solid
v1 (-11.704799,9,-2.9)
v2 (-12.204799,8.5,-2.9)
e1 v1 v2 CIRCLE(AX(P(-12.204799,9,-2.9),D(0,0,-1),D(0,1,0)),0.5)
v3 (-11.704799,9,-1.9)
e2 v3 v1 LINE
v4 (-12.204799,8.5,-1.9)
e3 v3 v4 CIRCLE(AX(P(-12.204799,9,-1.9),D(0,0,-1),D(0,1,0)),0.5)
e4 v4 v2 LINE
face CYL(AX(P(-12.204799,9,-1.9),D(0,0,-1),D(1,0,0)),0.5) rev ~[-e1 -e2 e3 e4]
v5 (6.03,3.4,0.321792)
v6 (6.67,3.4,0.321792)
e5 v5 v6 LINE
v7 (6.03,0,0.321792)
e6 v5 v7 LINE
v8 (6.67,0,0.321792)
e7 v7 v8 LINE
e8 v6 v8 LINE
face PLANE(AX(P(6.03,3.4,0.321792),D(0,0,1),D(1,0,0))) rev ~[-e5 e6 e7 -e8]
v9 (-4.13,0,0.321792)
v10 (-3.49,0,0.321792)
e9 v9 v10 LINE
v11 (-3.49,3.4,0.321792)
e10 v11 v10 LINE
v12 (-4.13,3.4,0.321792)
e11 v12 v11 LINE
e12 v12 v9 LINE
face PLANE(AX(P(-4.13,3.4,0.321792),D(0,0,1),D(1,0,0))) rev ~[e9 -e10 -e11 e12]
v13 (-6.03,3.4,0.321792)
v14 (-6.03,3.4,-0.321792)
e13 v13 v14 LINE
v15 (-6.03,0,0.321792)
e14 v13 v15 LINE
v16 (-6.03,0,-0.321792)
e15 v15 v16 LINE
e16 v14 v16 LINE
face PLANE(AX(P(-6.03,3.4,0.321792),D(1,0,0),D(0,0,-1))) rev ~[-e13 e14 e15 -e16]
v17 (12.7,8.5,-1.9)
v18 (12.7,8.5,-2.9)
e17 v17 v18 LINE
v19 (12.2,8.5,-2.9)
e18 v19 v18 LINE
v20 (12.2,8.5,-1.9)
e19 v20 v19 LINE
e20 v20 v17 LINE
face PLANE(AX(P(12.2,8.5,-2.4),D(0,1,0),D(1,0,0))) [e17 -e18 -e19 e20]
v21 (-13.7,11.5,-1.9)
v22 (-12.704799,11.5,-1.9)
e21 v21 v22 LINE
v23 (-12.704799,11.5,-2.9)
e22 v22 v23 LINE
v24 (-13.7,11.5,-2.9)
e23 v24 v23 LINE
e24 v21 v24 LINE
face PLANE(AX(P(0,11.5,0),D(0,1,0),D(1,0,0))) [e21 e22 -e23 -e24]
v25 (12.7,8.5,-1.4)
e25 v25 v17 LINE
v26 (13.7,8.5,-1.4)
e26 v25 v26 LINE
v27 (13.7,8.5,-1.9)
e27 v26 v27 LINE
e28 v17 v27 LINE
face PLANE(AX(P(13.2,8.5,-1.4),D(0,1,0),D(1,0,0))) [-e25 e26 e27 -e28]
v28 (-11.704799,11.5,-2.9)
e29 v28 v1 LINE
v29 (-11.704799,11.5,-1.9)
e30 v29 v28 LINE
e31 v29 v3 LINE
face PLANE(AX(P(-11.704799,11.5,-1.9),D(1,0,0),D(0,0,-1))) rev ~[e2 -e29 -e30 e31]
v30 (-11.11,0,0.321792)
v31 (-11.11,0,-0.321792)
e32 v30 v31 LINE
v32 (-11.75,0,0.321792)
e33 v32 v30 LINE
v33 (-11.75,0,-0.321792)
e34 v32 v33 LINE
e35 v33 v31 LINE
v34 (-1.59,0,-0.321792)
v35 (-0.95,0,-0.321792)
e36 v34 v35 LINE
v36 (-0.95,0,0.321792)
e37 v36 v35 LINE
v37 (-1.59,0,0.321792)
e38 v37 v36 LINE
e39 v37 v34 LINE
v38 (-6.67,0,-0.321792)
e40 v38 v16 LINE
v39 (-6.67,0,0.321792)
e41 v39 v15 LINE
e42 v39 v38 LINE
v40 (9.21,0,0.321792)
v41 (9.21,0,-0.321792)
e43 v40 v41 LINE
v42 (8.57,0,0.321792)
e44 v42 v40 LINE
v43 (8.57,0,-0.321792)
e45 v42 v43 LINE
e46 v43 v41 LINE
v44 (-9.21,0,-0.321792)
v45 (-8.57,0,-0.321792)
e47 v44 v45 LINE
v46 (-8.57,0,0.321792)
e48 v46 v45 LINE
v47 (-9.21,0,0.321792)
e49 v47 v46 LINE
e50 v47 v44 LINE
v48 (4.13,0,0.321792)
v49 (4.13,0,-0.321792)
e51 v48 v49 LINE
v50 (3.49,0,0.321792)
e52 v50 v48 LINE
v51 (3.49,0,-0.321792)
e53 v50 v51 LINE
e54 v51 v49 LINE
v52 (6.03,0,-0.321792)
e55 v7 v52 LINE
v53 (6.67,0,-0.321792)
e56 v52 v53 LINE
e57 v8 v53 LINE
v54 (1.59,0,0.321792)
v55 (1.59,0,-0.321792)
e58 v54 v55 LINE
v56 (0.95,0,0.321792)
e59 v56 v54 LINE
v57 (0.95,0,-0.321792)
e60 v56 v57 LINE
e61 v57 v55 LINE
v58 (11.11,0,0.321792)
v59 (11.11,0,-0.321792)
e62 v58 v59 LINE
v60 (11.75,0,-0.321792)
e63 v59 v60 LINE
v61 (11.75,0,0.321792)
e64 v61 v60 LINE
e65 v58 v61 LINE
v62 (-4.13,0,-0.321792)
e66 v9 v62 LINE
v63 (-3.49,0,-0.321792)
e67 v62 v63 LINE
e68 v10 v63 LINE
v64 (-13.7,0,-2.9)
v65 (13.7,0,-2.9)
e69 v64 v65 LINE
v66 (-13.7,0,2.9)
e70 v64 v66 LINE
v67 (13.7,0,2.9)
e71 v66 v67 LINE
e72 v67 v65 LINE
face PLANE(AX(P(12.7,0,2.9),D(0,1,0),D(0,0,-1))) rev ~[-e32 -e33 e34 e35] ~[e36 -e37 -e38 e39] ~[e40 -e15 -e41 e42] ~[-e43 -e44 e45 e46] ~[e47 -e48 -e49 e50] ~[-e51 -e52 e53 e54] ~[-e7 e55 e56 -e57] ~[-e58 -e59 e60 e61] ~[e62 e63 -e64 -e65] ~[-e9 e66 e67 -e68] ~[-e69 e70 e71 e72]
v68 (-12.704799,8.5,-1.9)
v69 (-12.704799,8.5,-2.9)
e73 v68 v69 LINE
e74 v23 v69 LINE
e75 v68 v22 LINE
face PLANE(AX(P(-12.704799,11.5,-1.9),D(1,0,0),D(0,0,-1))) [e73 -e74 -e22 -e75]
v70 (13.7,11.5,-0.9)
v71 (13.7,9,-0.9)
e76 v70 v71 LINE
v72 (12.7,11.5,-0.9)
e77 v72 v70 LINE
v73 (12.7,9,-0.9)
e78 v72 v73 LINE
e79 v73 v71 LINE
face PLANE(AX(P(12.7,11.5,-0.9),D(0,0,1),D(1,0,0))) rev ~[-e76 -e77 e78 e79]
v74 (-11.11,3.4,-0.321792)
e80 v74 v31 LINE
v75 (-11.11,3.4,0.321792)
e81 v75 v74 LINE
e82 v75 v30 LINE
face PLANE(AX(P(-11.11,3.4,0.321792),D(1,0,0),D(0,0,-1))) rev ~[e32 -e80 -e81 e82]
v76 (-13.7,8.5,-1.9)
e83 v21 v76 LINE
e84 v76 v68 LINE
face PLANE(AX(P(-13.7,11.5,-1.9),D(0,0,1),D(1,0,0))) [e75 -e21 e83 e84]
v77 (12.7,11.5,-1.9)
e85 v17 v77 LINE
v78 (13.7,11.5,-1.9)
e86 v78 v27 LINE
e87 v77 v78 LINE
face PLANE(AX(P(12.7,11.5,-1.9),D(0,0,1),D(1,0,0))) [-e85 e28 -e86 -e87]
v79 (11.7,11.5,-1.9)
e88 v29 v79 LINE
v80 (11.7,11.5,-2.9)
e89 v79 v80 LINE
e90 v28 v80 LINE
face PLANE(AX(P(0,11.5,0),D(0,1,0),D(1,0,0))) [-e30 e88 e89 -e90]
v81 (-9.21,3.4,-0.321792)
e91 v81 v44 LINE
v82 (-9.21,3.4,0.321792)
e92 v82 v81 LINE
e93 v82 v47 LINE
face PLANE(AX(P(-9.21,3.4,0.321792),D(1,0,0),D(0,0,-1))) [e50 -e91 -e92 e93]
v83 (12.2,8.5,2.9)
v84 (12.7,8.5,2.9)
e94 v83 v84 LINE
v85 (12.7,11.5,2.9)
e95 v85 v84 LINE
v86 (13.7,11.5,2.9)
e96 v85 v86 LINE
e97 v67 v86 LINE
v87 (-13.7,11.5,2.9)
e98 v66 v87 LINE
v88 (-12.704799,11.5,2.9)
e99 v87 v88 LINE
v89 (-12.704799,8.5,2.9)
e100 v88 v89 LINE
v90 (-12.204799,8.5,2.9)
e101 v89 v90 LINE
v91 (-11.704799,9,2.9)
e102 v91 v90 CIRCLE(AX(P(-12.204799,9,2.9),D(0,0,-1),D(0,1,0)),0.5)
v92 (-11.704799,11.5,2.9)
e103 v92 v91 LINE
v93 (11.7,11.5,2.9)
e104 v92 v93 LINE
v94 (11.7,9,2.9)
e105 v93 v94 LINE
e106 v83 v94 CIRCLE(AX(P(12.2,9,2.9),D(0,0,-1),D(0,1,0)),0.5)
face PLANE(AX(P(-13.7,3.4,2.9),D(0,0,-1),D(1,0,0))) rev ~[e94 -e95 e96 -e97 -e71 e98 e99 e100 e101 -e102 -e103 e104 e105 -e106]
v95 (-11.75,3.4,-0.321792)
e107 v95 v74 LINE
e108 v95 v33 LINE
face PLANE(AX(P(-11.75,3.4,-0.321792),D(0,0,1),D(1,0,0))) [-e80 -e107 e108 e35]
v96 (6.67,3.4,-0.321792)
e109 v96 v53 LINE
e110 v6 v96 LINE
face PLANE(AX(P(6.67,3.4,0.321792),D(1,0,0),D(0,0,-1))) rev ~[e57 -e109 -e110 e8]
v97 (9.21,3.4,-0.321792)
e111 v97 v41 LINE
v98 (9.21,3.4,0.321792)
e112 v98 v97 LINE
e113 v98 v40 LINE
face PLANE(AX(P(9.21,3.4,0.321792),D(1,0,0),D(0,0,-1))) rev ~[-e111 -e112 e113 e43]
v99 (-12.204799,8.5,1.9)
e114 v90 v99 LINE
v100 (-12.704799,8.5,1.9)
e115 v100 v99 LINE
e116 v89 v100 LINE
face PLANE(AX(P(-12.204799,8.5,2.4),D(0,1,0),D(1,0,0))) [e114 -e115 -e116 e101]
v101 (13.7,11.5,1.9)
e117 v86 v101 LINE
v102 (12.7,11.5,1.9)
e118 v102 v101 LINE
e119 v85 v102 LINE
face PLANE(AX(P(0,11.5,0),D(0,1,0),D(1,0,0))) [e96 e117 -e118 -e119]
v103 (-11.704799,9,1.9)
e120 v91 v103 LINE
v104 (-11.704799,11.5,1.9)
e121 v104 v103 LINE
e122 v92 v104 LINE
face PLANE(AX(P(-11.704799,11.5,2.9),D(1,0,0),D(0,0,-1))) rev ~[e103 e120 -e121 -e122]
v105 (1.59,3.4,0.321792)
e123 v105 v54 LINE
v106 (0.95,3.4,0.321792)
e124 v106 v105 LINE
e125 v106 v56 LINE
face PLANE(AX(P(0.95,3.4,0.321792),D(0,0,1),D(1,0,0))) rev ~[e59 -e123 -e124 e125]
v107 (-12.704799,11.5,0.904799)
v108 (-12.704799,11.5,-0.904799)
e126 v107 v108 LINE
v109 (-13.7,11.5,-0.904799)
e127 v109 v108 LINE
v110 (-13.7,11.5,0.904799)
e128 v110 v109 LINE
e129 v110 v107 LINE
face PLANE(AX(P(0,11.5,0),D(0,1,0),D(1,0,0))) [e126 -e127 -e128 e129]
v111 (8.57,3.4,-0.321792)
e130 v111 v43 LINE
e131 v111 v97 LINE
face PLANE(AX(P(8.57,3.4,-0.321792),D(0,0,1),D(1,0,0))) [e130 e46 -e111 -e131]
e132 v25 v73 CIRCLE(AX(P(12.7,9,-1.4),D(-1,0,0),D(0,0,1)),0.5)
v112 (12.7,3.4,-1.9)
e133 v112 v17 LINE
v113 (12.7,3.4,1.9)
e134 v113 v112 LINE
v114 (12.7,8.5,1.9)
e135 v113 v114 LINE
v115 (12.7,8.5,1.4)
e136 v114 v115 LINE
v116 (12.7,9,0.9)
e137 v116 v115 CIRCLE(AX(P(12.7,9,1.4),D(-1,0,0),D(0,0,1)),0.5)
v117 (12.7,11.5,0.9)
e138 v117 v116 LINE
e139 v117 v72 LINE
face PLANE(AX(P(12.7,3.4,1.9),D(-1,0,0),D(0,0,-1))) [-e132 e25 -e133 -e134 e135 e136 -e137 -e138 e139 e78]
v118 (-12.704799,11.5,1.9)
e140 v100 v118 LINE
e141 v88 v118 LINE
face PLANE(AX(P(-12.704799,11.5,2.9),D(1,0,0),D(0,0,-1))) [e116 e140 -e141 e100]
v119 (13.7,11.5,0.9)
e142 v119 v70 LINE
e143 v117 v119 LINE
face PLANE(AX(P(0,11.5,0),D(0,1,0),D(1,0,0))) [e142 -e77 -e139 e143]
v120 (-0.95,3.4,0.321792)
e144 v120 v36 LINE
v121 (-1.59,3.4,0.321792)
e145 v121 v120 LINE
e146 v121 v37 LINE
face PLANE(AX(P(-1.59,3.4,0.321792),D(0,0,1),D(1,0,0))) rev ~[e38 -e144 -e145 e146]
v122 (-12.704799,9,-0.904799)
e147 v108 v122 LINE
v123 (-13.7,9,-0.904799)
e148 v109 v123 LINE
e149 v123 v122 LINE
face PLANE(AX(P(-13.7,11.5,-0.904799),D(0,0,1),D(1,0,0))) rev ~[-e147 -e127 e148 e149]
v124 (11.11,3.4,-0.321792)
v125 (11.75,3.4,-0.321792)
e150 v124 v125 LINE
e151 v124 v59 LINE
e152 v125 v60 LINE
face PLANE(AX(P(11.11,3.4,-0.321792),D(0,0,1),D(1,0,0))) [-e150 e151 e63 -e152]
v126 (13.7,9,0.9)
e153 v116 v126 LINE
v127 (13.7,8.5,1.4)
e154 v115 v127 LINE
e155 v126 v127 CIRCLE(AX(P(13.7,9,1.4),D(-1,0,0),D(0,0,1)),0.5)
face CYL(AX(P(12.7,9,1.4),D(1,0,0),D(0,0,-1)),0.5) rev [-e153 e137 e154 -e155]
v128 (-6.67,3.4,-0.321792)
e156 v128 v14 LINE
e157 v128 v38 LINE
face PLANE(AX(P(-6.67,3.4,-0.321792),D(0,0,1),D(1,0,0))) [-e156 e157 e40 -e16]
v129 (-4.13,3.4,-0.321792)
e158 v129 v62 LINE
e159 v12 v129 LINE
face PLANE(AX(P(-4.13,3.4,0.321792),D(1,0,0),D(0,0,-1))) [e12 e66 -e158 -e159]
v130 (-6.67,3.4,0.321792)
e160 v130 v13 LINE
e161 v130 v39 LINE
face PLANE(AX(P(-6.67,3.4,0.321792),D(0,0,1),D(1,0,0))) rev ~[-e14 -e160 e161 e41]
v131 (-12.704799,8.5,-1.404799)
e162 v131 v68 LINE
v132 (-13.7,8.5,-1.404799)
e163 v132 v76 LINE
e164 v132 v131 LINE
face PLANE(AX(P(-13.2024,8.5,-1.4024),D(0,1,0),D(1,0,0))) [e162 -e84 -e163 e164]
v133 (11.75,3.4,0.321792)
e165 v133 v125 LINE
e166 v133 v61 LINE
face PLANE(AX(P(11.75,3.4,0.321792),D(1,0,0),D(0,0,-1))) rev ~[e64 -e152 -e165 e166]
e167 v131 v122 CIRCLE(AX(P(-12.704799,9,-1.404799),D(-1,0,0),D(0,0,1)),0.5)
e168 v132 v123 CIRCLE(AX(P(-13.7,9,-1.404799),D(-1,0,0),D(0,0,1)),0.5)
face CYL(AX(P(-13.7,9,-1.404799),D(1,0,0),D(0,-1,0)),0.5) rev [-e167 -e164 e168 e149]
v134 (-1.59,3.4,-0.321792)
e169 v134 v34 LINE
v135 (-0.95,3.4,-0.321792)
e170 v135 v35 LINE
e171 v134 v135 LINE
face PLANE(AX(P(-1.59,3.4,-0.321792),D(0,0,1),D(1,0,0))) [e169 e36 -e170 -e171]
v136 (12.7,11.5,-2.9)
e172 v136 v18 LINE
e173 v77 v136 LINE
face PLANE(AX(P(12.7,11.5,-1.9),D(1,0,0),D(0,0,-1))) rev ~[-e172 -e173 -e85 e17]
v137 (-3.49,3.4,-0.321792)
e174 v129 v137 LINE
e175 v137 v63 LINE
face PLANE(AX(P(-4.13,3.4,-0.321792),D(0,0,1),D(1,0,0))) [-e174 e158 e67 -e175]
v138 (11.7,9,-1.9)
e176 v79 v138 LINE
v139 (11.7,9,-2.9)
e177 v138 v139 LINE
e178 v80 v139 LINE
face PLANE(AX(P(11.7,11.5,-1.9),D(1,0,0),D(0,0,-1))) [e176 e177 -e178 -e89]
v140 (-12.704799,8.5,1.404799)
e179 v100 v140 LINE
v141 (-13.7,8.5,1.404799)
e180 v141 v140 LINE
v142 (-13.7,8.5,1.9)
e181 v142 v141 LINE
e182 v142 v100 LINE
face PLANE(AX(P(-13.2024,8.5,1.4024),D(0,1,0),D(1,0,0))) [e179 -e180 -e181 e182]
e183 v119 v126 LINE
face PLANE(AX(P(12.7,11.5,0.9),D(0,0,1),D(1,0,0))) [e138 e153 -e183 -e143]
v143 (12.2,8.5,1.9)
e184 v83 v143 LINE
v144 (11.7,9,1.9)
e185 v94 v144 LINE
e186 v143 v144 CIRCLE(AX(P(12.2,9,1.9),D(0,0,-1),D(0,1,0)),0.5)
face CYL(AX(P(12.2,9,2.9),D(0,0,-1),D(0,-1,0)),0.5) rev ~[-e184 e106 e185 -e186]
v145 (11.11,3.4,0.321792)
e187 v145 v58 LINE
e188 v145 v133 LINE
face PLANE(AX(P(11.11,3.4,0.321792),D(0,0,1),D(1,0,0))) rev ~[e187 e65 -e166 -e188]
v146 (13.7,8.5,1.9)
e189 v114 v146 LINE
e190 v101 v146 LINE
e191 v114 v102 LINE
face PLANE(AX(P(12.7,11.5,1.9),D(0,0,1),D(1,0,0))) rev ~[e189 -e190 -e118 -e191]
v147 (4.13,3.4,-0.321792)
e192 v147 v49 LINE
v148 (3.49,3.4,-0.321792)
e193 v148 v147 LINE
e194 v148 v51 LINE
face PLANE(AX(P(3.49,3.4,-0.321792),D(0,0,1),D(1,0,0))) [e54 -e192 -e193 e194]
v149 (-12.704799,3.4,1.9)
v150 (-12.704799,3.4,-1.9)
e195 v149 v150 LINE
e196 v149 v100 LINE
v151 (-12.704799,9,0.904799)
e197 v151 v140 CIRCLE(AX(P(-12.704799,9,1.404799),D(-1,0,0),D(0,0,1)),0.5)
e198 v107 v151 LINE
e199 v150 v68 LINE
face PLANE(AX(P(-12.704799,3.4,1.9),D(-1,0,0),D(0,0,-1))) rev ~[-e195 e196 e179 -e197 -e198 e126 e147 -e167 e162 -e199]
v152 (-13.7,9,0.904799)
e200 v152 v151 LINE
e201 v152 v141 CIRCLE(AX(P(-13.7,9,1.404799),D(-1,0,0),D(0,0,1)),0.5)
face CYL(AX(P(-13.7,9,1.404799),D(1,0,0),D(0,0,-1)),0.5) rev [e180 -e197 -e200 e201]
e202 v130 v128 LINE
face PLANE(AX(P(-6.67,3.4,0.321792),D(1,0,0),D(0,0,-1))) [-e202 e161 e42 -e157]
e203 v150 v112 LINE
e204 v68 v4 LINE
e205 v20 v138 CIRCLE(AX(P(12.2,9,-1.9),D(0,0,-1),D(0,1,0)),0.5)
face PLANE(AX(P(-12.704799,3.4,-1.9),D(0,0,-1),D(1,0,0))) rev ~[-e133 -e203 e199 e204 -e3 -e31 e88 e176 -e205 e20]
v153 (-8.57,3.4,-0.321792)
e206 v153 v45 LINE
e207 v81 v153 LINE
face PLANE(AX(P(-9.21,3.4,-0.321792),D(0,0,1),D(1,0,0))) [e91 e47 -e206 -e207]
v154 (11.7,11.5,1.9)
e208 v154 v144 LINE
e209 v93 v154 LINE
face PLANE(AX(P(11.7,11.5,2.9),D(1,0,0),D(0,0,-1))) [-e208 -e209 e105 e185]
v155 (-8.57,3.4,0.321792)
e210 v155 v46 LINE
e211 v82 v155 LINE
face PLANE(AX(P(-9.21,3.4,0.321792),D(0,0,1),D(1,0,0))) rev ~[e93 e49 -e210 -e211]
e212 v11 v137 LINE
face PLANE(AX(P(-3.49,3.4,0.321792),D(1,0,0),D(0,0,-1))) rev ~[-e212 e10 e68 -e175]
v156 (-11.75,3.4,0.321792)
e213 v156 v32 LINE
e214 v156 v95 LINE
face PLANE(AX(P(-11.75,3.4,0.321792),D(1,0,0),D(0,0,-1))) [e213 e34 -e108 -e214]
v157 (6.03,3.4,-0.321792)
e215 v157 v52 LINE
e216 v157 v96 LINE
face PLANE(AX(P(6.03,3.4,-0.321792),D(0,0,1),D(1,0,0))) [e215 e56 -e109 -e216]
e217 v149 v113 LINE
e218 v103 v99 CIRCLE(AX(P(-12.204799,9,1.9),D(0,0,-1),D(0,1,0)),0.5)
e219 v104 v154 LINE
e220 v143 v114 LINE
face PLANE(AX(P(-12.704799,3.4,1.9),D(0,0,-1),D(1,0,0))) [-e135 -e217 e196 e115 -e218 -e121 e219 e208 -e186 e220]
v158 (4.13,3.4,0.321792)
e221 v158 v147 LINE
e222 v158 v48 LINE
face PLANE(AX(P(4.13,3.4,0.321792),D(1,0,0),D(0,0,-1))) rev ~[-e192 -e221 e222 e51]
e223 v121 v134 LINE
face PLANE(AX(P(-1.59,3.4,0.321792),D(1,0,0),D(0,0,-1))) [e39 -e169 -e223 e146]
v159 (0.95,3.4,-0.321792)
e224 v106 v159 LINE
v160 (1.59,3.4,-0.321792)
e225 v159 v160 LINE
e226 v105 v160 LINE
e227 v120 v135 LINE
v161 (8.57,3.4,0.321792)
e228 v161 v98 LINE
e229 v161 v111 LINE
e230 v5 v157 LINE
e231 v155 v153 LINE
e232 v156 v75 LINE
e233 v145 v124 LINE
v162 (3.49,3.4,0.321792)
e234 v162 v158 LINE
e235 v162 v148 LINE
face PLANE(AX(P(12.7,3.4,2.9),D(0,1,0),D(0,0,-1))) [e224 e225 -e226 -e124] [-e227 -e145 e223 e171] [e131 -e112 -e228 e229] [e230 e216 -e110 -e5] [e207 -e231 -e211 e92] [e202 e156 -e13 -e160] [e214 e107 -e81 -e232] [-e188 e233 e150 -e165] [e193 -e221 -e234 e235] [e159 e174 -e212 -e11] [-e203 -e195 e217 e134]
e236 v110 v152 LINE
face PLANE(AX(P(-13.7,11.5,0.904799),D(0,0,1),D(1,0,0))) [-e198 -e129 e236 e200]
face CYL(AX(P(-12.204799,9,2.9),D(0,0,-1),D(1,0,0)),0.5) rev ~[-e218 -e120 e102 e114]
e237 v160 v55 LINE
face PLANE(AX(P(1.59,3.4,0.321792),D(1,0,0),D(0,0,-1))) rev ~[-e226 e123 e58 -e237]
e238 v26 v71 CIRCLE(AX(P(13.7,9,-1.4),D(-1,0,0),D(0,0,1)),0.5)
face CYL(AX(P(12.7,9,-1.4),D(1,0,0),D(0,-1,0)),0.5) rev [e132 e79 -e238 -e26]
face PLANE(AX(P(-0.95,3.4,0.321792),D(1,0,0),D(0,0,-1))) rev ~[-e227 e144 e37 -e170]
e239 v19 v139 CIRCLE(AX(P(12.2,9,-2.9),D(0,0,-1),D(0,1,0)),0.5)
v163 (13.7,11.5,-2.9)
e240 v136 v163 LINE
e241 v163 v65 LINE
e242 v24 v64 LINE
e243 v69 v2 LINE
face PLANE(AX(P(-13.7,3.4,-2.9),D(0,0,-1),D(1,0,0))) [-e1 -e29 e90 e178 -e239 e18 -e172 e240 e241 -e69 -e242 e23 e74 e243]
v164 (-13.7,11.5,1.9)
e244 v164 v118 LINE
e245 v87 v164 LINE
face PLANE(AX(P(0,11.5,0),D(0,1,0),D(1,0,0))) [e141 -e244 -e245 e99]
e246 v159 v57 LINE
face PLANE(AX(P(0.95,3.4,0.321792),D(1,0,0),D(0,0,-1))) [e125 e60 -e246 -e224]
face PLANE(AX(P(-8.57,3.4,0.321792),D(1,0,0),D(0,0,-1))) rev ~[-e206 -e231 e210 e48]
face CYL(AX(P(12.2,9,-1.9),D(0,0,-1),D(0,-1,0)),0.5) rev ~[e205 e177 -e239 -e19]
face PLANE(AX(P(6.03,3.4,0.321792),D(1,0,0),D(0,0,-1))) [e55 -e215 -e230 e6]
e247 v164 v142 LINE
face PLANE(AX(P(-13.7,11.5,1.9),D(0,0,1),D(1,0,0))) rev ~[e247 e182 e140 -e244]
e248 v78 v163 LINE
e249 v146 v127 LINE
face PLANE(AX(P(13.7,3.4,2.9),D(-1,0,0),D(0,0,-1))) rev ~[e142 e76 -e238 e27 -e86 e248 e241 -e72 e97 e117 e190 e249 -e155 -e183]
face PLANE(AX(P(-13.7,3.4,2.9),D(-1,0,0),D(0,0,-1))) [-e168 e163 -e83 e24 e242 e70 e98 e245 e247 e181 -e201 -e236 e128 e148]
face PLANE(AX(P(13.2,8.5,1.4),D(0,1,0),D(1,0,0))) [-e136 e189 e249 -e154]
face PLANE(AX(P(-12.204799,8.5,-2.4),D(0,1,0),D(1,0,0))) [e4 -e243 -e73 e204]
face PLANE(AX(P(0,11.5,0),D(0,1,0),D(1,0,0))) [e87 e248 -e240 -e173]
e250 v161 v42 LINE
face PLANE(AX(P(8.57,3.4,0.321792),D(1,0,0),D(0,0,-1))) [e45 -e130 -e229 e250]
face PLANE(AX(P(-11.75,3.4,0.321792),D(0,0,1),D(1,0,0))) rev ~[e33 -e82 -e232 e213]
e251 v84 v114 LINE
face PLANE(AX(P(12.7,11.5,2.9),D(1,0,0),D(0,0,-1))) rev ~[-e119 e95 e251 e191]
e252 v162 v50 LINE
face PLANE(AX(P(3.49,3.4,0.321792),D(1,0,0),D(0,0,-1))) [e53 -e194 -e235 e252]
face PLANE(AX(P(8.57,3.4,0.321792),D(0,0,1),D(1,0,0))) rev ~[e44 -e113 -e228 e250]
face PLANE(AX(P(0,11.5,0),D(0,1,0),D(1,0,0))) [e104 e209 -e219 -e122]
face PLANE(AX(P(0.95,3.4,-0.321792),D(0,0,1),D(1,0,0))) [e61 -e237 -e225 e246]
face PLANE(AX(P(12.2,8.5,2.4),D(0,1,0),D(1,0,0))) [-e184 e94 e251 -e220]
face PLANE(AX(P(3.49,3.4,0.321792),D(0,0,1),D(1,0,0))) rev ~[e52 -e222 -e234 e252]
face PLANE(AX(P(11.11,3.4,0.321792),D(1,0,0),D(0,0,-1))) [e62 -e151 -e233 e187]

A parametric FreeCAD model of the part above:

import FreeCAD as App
import Part
import Sketcher
from FreeCAD import Vector
Q = App.Units.Quantity


def edges_at(feature, points):
    """Names of the edges that pass closest to the given points."""
    edges = feature.Shape.Edges
    near = lambda p: min(range(len(edges)), key=lambda i: edges[i].distToShape(Part.Vertex(*p))[0])
    return sorted({f"Edge{near(p) + 1}" for p in points})

doc = App.newDocument("Part")
params = doc.addObject("Spreadsheet::Sheet", "Params")
for row, (alias, value) in enumerate([
    ("sketch1_width", "25.4 mm"),
    ("sketch1_height", "5.8 mm"),
    ("pad1_length", "3.4 mm"),
    ("sketch2_width", "0.64 mm"),
    ("pocket1_length", "3.4 mm"),
    ("sketch3_width", "3.4 mm"),
    ("sketch3_height", "5.8 mm"),
    ("pad2_length", "1 mm"),
    ("sketch4_width", "3.4 mm"),
    ("sketch4_height", "5.8 mm"),
    ("pad3_length", "1 mm"),
    ("sketch5_width", "27.4 mm"),
    ("sketch5_height", "5.8 mm"),
    ("sketch5_height2", "3.8 mm"),
    ("pad4_length", "8.1 mm"),
    ("sketch6_width", "1 mm"),
    ("pocket2_length", "3 mm"),
    ("fillet_radius", "0.5 mm"),
], start=1):
    params.set(f"A{row}", alias)
    params.set(f"B{row}", "=" + value)
    params.setAlias(f"B{row}", alias)

body = doc.addObject("PartDesign::Body", "Body")

# Sketch on XZ plane
sketch1 = body.newObject("Sketcher::SketchObject", "Sketch")
sketch1.AttachmentSupport = (doc.getObject("XZ_Plane"), [""])
sketch1.MapMode = "FlatFace"
sketch1.addGeometry([
    Part.LineSegment(Vector(-13, -3, 0), Vector(-13, 3, 0)),
    Part.LineSegment(Vector(-13, 3, 0), Vector(13, 3, 0)),
    Part.LineSegment(Vector(13, 3, 0), Vector(13, -3, 0)),
    Part.LineSegment(Vector(13, -3, 0), Vector(-13, -3, 0)),
], False)
sketch1.addConstraint([
    Sketcher.Constraint("Coincident", 0, 2, 1, 1),
    Sketcher.Constraint("Coincident", 1, 2, 2, 1),
    Sketcher.Constraint("Coincident", 2, 2, 3, 1),
    Sketcher.Constraint("Coincident", 3, 2, 0, 1),
    Sketcher.Constraint("Vertical", 0),
    Sketcher.Constraint("Horizontal", 1),
    Sketcher.Constraint("Vertical", 2),
    Sketcher.Constraint("Horizontal", 3),
    Sketcher.Constraint("Symmetric", 0, 2, 2, 2, -1, 1),
    Sketcher.Constraint("DistanceX", 1, 1, 1, 2, Q("25.4 mm")),
    Sketcher.Constraint("DistanceY", 0, 1, 0, 2, Q("5.8 mm")),
])
sketch1.setExpression("Constraints[9]", "Params.sketch1_width")
sketch1.setExpression("Constraints[10]", "Params.sketch1_height")
pad1 = body.newObject("PartDesign::Pad", "Pad")
pad1.Profile = sketch1
pad1.setExpression("Length", "Params.pad1_length")
pad1.Reversed = True

# Sketch on XZ plane
sketch2 = body.newObject("Sketcher::SketchObject", "Sketch001")
sketch2.AttachmentSupport = (doc.getObject("XZ_Plane"), [""])
sketch2.MapMode = "FlatFace"
sketch2.AttachmentOffset = App.Placement(Vector(0, 0, -3.4), App.Rotation())
sketch2.addGeometry([
    Part.LineSegment(Vector(-11.8, -0.3, 0), Vector(-11.8, 0.3, 0)),  # 0
    Part.LineSegment(Vector(-11.8, 0.3, 0), Vector(-11.1, 0.3, 0)),  # 1
    Part.LineSegment(Vector(-11.1, 0.3, 0), Vector(-11.1, -0.3, 0)),  # 2
    Part.LineSegment(Vector(-11.1, -0.3, 0), Vector(-11.8, -0.3, 0)),  # 3
    Part.LineSegment(Vector(-9.2, -0.3, 0), Vector(-9.2, 0.3, 0)),  # 4
    Part.LineSegment(Vector(-9.2, 0.3, 0), Vector(-8.6, 0.3, 0)),  # 5
    Part.LineSegment(Vector(-8.6, 0.3, 0), Vector(-8.6, -0.3, 0)),  # 6
    Part.LineSegment(Vector(-8.6, -0.3, 0), Vector(-9.2, -0.3, 0)),  # 7
    Part.LineSegment(Vector(-6.7, -0.3, 0), Vector(-6.7, 0.3, 0)),  # 8
    Part.LineSegment(Vector(-6.7, 0.3, 0), Vector(-6, 0.3, 0)),  # 9
    Part.LineSegment(Vector(-6, 0.3, 0), Vector(-6, -0.3, 0)),  # 10
    Part.LineSegment(Vector(-6, -0.3, 0), Vector(-6.7, -0.3, 0)),  # 11
    Part.LineSegment(Vector(-4.1, -0.3, 0), Vector(-4.1, 0.3, 0)),  # 12
    Part.LineSegment(Vector(-4.1, 0.3, 0), Vector(-3.5, 0.3, 0)),  # 13
    Part.LineSegment(Vector(-3.5, 0.3, 0), Vector(-3.5, -0.3, 0)),  # 14
    Part.LineSegment(Vector(-3.5, -0.3, 0), Vector(-4.1, -0.3, 0)),  # 15
    Part.LineSegment(Vector(-1.6, -0.3, 0), Vector(-1.6, 0.3, 0)),  # 16
    Part.LineSegment(Vector(-1.6, 0.3, 0), Vector(-0.9, 0.3, 0)),  # 17
    Part.LineSegment(Vector(-0.9, 0.3, 0), Vector(-0.9, -0.3, 0)),  # 18
    Part.LineSegment(Vector(-0.9, -0.3, 0), Vector(-1.6, -0.3, 0)),  # 19
    Part.LineSegment(Vector(0.9, -0.3, 0), Vector(0.9, 0.3, 0)),  # 20
    Part.LineSegment(Vector(0.9, 0.3, 0), Vector(1.6, 0.3, 0)),  # 21
    Part.LineSegment(Vector(1.6, 0.3, 0), Vector(1.6, -0.3, 0)),  # 22
    Part.LineSegment(Vector(1.6, -0.3, 0), Vector(0.9, -0.3, 0)),  # 23
    Part.LineSegment(Vector(3.5, -0.3, 0), Vector(3.5, 0.3, 0)),  # 24
    Part.LineSegment(Vector(3.5, 0.3, 0), Vector(4.1, 0.3, 0)),  # 25
    Part.LineSegment(Vector(4.1, 0.3, 0), Vector(4.1, -0.3, 0)),  # 26
    Part.LineSegment(Vector(4.1, -0.3, 0), Vector(3.5, -0.3, 0)),  # 27
    Part.LineSegment(Vector(6, -0.3, 0), Vector(6, 0.3, 0)),  # 28
    Part.LineSegment(Vector(6, 0.3, 0), Vector(6.7, 0.3, 0)),  # 29
    Part.LineSegment(Vector(6.7, 0.3, 0), Vector(6.7, -0.3, 0)),  # 30
    Part.LineSegment(Vector(6.7, -0.3, 0), Vector(6, -0.3, 0)),  # 31
    Part.LineSegment(Vector(8.6, -0.3, 0), Vector(8.6, 0.3, 0)),  # 32
    Part.LineSegment(Vector(8.6, 0.3, 0), Vector(9.2, 0.3, 0)),  # 33
    Part.LineSegment(Vector(9.2, 0.3, 0), Vector(9.2, -0.3, 0)),  # 34
    Part.LineSegment(Vector(9.2, -0.3, 0), Vector(8.6, -0.3, 0)),  # 35
    Part.LineSegment(Vector(11.1, -0.3, 0), Vector(11.1, 0.3, 0)),  # 36
    Part.LineSegment(Vector(11.1, 0.3, 0), Vector(11.8, 0.3, 0)),  # 37
    Part.LineSegment(Vector(11.8, 0.3, 0), Vector(11.8, -0.3, 0)),  # 38
    Part.LineSegment(Vector(11.8, -0.3, 0), Vector(11.1, -0.3, 0)),  # 39
], False)
sketch2.addConstraint([
    Sketcher.Constraint("Coincident", 0, 2, 1, 1),
    Sketcher.Constraint("Coincident", 1, 2, 2, 1),
    Sketcher.Constraint("Coincident", 2, 2, 3, 1),
    Sketcher.Constraint("Coincident", 3, 2, 0, 1),
    Sketcher.Constraint("Coincident", 4, 2, 5, 1),
    Sketcher.Constraint("Coincident", 5, 2, 6, 1),
    Sketcher.Constraint("Coincident", 6, 2, 7, 1),
    Sketcher.Constraint("Coincident", 7, 2, 4, 1),
    Sketcher.Constraint("Coincident", 8, 2, 9, 1),
    Sketcher.Constraint("Coincident", 9, 2, 10, 1),
    Sketcher.Constraint("Coincident", 10, 2, 11, 1),
    Sketcher.Constraint("Coincident", 11, 2, 8, 1),
    Sketcher.Constraint("Coincident", 12, 2, 13, 1),
    Sketcher.Constraint("Coincident", 13, 2, 14, 1),
    Sketcher.Constraint("Coincident", 14, 2, 15, 1),
    Sketcher.Constraint("Coincident", 15, 2, 12, 1),
    Sketcher.Constraint("Coincident", 16, 2, 17, 1),
    Sketcher.Constraint("Coincident", 17, 2, 18, 1),
    Sketcher.Constraint("Coincident", 18, 2, 19, 1),
    Sketcher.Constraint("Coincident", 19, 2, 16, 1),
    Sketcher.Constraint("Coincident", 20, 2, 21, 1),
    Sketcher.Constraint("Coincident", 21, 2, 22, 1),
    Sketcher.Constraint("Coincident", 22, 2, 23, 1),
    Sketcher.Constraint("Coincident", 23, 2, 20, 1),
    Sketcher.Constraint("Coincident", 24, 2, 25, 1),
    Sketcher.Constraint("Coincident", 25, 2, 26, 1),
    Sketcher.Constraint("Coincident", 26, 2, 27, 1),
    Sketcher.Constraint("Coincident", 27, 2, 24, 1),
    Sketcher.Constraint("Coincident", 28, 2, 29, 1),
    Sketcher.Constraint("Coincident", 29, 2, 30, 1),
    Sketcher.Constraint("Coincident", 30, 2, 31, 1),
    Sketcher.Constraint("Coincident", 31, 2, 28, 1),
    Sketcher.Constraint("Coincident", 32, 2, 33, 1),
    Sketcher.Constraint("Coincident", 33, 2, 34, 1),
    Sketcher.Constraint("Coincident", 34, 2, 35, 1),
    Sketcher.Constraint("Coincident", 35, 2, 32, 1),
    Sketcher.Constraint("Coincident", 36, 2, 37, 1),
    Sketcher.Constraint("Coincident", 37, 2, 38, 1),
    Sketcher.Constraint("Coincident", 38, 2, 39, 1),
    Sketcher.Constraint("Coincident", 39, 2, 36, 1),
    Sketcher.Constraint("Vertical", 0),
    Sketcher.Constraint("Horizontal", 1),
    Sketcher.Constraint("Vertical", 2),
    Sketcher.Constraint("Horizontal", 3),
    Sketcher.Constraint("Vertical", 4),
    Sketcher.Constraint("Horizontal", 5),
    Sketcher.Constraint("Vertical", 6),
    Sketcher.Constraint("Horizontal", 7),
    Sketcher.Constraint("Vertical", 8),
    Sketcher.Constraint("Horizontal", 9),
    Sketcher.Constraint("Vertical", 10),
    Sketcher.Constraint("Horizontal", 11),
    Sketcher.Constraint("Vertical", 12),
    Sketcher.Constraint("Horizontal", 13),
    Sketcher.Constraint("Vertical", 14),
    Sketcher.Constraint("Horizontal", 15),
    Sketcher.Constraint("Vertical", 16),
    Sketcher.Constraint("Horizontal", 17),
    Sketcher.Constraint("Vertical", 18),
    Sketcher.Constraint("Horizontal", 19),
    Sketcher.Constraint("Vertical", 20),
    Sketcher.Constraint("Horizontal", 21),
    Sketcher.Constraint("Vertical", 22),
    Sketcher.Constraint("Horizontal", 23),
    Sketcher.Constraint("Vertical", 24),
    Sketcher.Constraint("Horizontal", 25),
    Sketcher.Constraint("Vertical", 26),
    Sketcher.Constraint("Horizontal", 27),
    Sketcher.Constraint("Vertical", 28),
    Sketcher.Constraint("Horizontal", 29),
    Sketcher.Constraint("Vertical", 30),
    Sketcher.Constraint("Horizontal", 31),
    Sketcher.Constraint("Vertical", 32),
    Sketcher.Constraint("Horizontal", 33),
    Sketcher.Constraint("Vertical", 34),
    Sketcher.Constraint("Horizontal", 35),
    Sketcher.Constraint("Vertical", 36),
    Sketcher.Constraint("Horizontal", 37),
    Sketcher.Constraint("Vertical", 38),
    Sketcher.Constraint("Horizontal", 39),
    Sketcher.Constraint("Symmetric", 18, 2, 20, 2, -1, 1),
    Sketcher.Constraint("Symmetric", 16, 2, 22, 2, -1, 1),
    Sketcher.Constraint("Symmetric", 14, 2, 24, 2, -1, 1),
    Sketcher.Constraint("Symmetric", 12, 2, 26, 2, -1, 1),
    Sketcher.Constraint("Symmetric", 10, 2, 28, 2, -1, 1),
    Sketcher.Constraint("Symmetric", 8, 2, 30, 2, -1, 1),
    Sketcher.Constraint("Symmetric", 6, 2, 32, 2, -1, 1),
    Sketcher.Constraint("Symmetric", 4, 2, 34, 2, -1, 1),
    Sketcher.Constraint("Symmetric", 2, 2, 36, 2, -1, 1),
    Sketcher.Constraint("Symmetric", 0, 2, 38, 2, -1, 1),
    Sketcher.Constraint("Horizontal", 1, 2, 4, 2),
    Sketcher.Constraint("Horizontal", 3, 2, 6, 2),
    Sketcher.Constraint("Horizontal", 5, 2, 8, 2),
    Sketcher.Constraint("Horizontal", 7, 2, 10, 2),
    Sketcher.Constraint("Horizontal", 9, 2, 12, 2),
    Sketcher.Constraint("Horizontal", 11, 2, 14, 2),
    Sketcher.Constraint("Horizontal", 13, 2, 16, 2),
    Sketcher.Constraint("Horizontal", 15, 2, 18, 2),
    Sketcher.Constraint("Horizontal", 17, 2, 20, 2),
    Sketcher.Constraint("Equal", 3, 5),
    Sketcher.Constraint("Equal", 7, 9),
    Sketcher.Constraint("Equal", 11, 13),
    Sketcher.Constraint("Equal", 15, 17),
    Sketcher.Constraint("DistanceX", 1, 1, 1, 2, Q("0.64 mm")),
    Sketcher.Constraint("DistanceX", 1, 2, 4, 2, Q("1.9 mm")),
    Sketcher.Constraint("DistanceX", 5, 2, 8, 2, Q("1.9 mm")),
    Sketcher.Constraint("DistanceX", 9, 2, 12, 2, Q("1.9 mm")),
    Sketcher.Constraint("DistanceX", 13, 2, 16, 2, Q("1.9 mm")),
    Sketcher.Constraint("DistanceX", 17, 2, 20, 2, Q("1.9 mm")),
    Sketcher.Constraint("DistanceY", 0, 1, 0, 2, Q("0.643583 mm")),
])
sketch2.setExpression("Constraints[103]", "Params.sketch2_width")
pocket1 = body.newObject("PartDesign::Pocket", "Pocket")
pocket1.Profile = sketch2
pocket1.setExpression("Length", "Params.pocket1_length")
pocket1.Reversed = True

# Sketch on YZ plane
sketch3 = body.newObject("Sketcher::SketchObject", "Sketch002")
sketch3.AttachmentSupport = (doc.getObject("YZ_Plane"), [""])
sketch3.MapMode = "FlatFace"
sketch3.AttachmentOffset = App.Placement(Vector(0, 0, -12.7), App.Rotation())
sketch3.addGeometry([
    Part.LineSegment(Vector(3.4, -2.9, 0), Vector(0, -2.9, 0)),
    Part.LineSegment(Vector(0, -2.9, 0), Vector(0, 2.9, 0)),
    Part.LineSegment(Vector(0, 2.9, 0), Vector(3.4, 2.9, 0)),
    Part.LineSegment(Vector(3.4, 2.9, 0), Vector(3.4, -2.9, 0)),
], False)
sketch3.addConstraint([
    Sketcher.Constraint("Coincident", 0, 2, 1, 1),
    Sketcher.Constraint("Coincident", 1, 2, 2, 1),
    Sketcher.Constraint("Coincident", 2, 2, 3, 1),
    Sketcher.Constraint("Coincident", 3, 2, 0, 1),
    Sketcher.Constraint("Horizontal", 0),
    Sketcher.Constraint("Vertical", 1),
    Sketcher.Constraint("Horizontal", 2),
    Sketcher.Constraint("Vertical", 3),
    Sketcher.Constraint("Symmetric", 0, 2, 1, 2, -1, 1),
    Sketcher.Constraint("DistanceX", 0, 2, 0, 1, Q("3.4 mm")),
    Sketcher.Constraint("DistanceY", 1, 1, 1, 2, Q("5.8 mm")),
])
sketch3.setExpression("Constraints[9]", "Params.sketch3_width")
sketch3.setExpression("Constraints[10]", "Params.sketch3_height")
pad2 = body.newObject("PartDesign::Pad", "Pad001")
pad2.Profile = sketch3
pad2.setExpression("Length", "Params.pad2_length")
pad2.Reversed = True

# Sketch on YZ plane
sketch4 = body.newObject("Sketcher::SketchObject", "Sketch003")
sketch4.AttachmentSupport = (doc.getObject("YZ_Plane"), [""])
sketch4.MapMode = "FlatFace"
sketch4.AttachmentOffset = App.Placement(Vector(0, 0, 12.7), App.Rotation())
sketch4.addGeometry([
    Part.LineSegment(Vector(3.4, 2.9, 0), Vector(0, 2.9, 0)),
    Part.LineSegment(Vector(0, 2.9, 0), Vector(0, -2.9, 0)),
    Part.LineSegment(Vector(0, -2.9, 0), Vector(3.4, -2.9, 0)),
    Part.LineSegment(Vector(3.4, -2.9, 0), Vector(3.4, 2.9, 0)),
], False)
sketch4.addConstraint([
    Sketcher.Constraint("Coincident", 0, 2, 1, 1),
    Sketcher.Constraint("Coincident", 1, 2, 2, 1),
    Sketcher.Constraint("Coincident", 2, 2, 3, 1),
    Sketcher.Constraint("Coincident", 3, 2, 0, 1),
    Sketcher.Constraint("Horizontal", 0),
    Sketcher.Constraint("Vertical", 1),
    Sketcher.Constraint("Horizontal", 2),
    Sketcher.Constraint("Vertical", 3),
    Sketcher.Constraint("Symmetric", 0, 2, 1, 2, -1, 1),
    Sketcher.Constraint("DistanceX", 0, 2, 0, 1, Q("3.4 mm")),
    Sketcher.Constraint("DistanceY", 1, 2, 1, 1, Q("5.8 mm")),
])
sketch4.setExpression("Constraints[9]", "Params.sketch4_width")
sketch4.setExpression("Constraints[10]", "Params.sketch4_height")
pad3 = body.newObject("PartDesign::Pad", "Pad002")
pad3.Profile = sketch4
pad3.setExpression("Length", "Params.pad3_length")

# Sketch on XZ plane
sketch5 = body.newObject("Sketcher::SketchObject", "Sketch004")
sketch5.AttachmentSupport = (doc.getObject("XZ_Plane"), [""])
sketch5.MapMode = "FlatFace"
sketch5.AttachmentOffset = App.Placement(Vector(0, 0, -3.4), App.Rotation())
sketch5.addGeometry([
    Part.LineSegment(Vector(-13.7, -2.9, 0), Vector(-13.7, 2.9, 0)),  # 0
    Part.LineSegment(Vector(-13.7, 2.9, 0), Vector(13.7, 2.9, 0)),  # 1
    Part.LineSegment(Vector(13.7, 2.9, 0), Vector(13.7, -2.9, 0)),  # 2
    Part.LineSegment(Vector(13.7, -2.9, 0), Vector(-13.7, -2.9, 0)),  # 3
    Part.LineSegment(Vector(12.7, 1.9, 0), Vector(-12.7, 1.9, 0)),  # 4
    Part.LineSegment(Vector(-12.7, 1.9, 0), Vector(-12.7, -1.9, 0)),  # 5
    Part.LineSegment(Vector(-12.7, -1.9, 0), Vector(12.7, -1.9, 0)),  # 6
    Part.LineSegment(Vector(12.7, -1.9, 0), Vector(12.7, 1.9, 0)),  # 7
], False)
sketch5.addConstraint([
    Sketcher.Constraint("Coincident", 0, 2, 1, 1),
    Sketcher.Constraint("Coincident", 1, 2, 2, 1),
    Sketcher.Constraint("Coincident", 2, 2, 3, 1),
    Sketcher.Constraint("Coincident", 3, 2, 0, 1),
    Sketcher.Constraint("Coincident", 4, 2, 5, 1),
    Sketcher.Constraint("Coincident", 5, 2, 6, 1),
    Sketcher.Constraint("Coincident", 6, 2, 7, 1),
    Sketcher.Constraint("Coincident", 7, 2, 4, 1),
    Sketcher.Constraint("Vertical", 0),
    Sketcher.Constraint("Horizontal", 1),
    Sketcher.Constraint("Vertical", 2),
    Sketcher.Constraint("Horizontal", 3),
    Sketcher.Constraint("Horizontal", 4),
    Sketcher.Constraint("Vertical", 5),
    Sketcher.Constraint("Horizontal", 6),
    Sketcher.Constraint("Vertical", 7),
    Sketcher.Constraint("Symmetric", 0, 2, 2, 2, -1, 1),
    Sketcher.Constraint("DistanceX", 1, 1, 1, 2, Q("27.4 mm")),
    Sketcher.Constraint("DistanceY", 0, 1, 0, 2, Q("5.8 mm")),
    Sketcher.Constraint("DistanceY", 5, 2, 5, 1, Q("3.8 mm")),
    Sketcher.Constraint("DistanceY", 4, 2, 0, 2, Q("1 mm")),
    Sketcher.Constraint("DistanceX", 6, 2, 2, 2, Q("1 mm")),
    Sketcher.Constraint("DistanceX", 4, 2, 4, 1, Q("25.404799 mm")),
])
sketch5.setExpression("Constraints[17]", "Params.sketch5_width")
sketch5.setExpression("Constraints[18]", "Params.sketch5_height")
sketch5.setExpression("Constraints[19]", "Params.sketch5_height2")
pad4 = body.newObject("PartDesign::Pad", "Pad003")
pad4.Profile = sketch5
pad4.setExpression("Length", "Params.pad4_length")
pad4.Reversed = True

# Sketch on XZ plane
sketch6 = body.newObject("Sketcher::SketchObject", "Sketch005")
sketch6.AttachmentSupport = (doc.getObject("XZ_Plane"), [""])
sketch6.MapMode = "FlatFace"
sketch6.AttachmentOffset = App.Placement(Vector(0, 0, -11.5), App.Rotation())
sketch6.addGeometry([
    Part.LineSegment(Vector(11.7, -2.9, 0), Vector(11.7, -1.9, 0)),  # 0
    Part.LineSegment(Vector(11.7, -1.9, 0), Vector(12.7, -1.9, 0)),  # 1
    Part.LineSegment(Vector(12.7, -1.9, 0), Vector(12.7, -2.9, 0)),  # 2
    Part.LineSegment(Vector(12.7, -2.9, 0), Vector(11.7, -2.9, 0)),  # 3
    Part.LineSegment(Vector(12.7, -1.9, 0), Vector(12.7, -0.9, 0)),  # 4
    Part.LineSegment(Vector(12.7, -0.9, 0), Vector(13.7, -0.9, 0)),  # 5
    Part.LineSegment(Vector(13.7, -0.9, 0), Vector(13.7, -1.9, 0)),  # 6
    Part.LineSegment(Vector(13.7, -1.9, 0), Vector(12.7, -1.9, 0)),  # 7
    Part.LineSegment(Vector(12.7, 0.9, 0), Vector(12.7, 1.9, 0)),  # 8
    Part.LineSegment(Vector(12.7, 1.9, 0), Vector(13.7, 1.9, 0)),  # 9
    Part.LineSegment(Vector(13.7, 1.9, 0), Vector(13.7, 0.9, 0)),  # 10
    Part.LineSegment(Vector(13.7, 0.9, 0), Vector(12.7, 0.9, 0)),  # 11
    Part.LineSegment(Vector(11.7, 1.9, 0), Vector(11.7, 2.9, 0)),  # 12
    Part.LineSegment(Vector(11.7, 2.9, 0), Vector(12.7, 2.9, 0)),  # 13
    Part.LineSegment(Vector(12.7, 2.9, 0), Vector(12.7, 1.9, 0)),  # 14
    Part.LineSegment(Vector(12.7, 1.9, 0), Vector(11.7, 1.9, 0)),  # 15
    Part.LineSegment(Vector(-12.7, 1.9, 0), Vector(-12.7, 2.9, 0)),  # 16
    Part.LineSegment(Vector(-12.7, 2.9, 0), Vector(-11.7, 2.9, 0)),  # 17
    Part.LineSegment(Vector(-11.7, 2.9, 0), Vector(-11.7, 1.9, 0)),  # 18
    Part.LineSegment(Vector(-11.7, 1.9, 0), Vector(-12.7, 1.9, 0)),  # 19
    Part.LineSegment(Vector(-13.7, 0.9, 0), Vector(-13.7, 1.9, 0)),  # 20
    Part.LineSegment(Vector(-13.7, 1.9, 0), Vector(-12.7, 1.9, 0)),  # 21
    Part.LineSegment(Vector(-12.7, 1.9, 0), Vector(-12.7, 0.9, 0)),  # 22
    Part.LineSegment(Vector(-12.7, 0.9, 0), Vector(-13.7, 0.9, 0)),  # 23
    Part.LineSegment(Vector(-13.7, -1.9, 0), Vector(-13.7, -0.9, 0)),  # 24
    Part.LineSegment(Vector(-13.7, -0.9, 0), Vector(-12.7, -0.9, 0)),  # 25
    Part.LineSegment(Vector(-12.7, -0.9, 0), Vector(-12.7, -1.9, 0)),  # 26
    Part.LineSegment(Vector(-12.7, -1.9, 0), Vector(-13.7, -1.9, 0)),  # 27
    Part.LineSegment(Vector(-12.7, -2.9, 0), Vector(-12.7, -1.9, 0)),  # 28
    Part.LineSegment(Vector(-12.7, -1.9, 0), Vector(-11.7, -1.9, 0)),  # 29
    Part.LineSegment(Vector(-11.7, -1.9, 0), Vector(-11.7, -2.9, 0)),  # 30
    Part.LineSegment(Vector(-11.7, -2.9, 0), Vector(-12.7, -2.9, 0)),  # 31
], False)
sketch6.addConstraint([
    Sketcher.Constraint("Coincident", 0, 2, 1, 1),
    Sketcher.Constraint("Coincident", 1, 2, 2, 1),
    Sketcher.Constraint("Coincident", 2, 2, 3, 1),
    Sketcher.Constraint("Coincident", 3, 2, 0, 1),
    Sketcher.Constraint("Coincident", 4, 2, 5, 1),
    Sketcher.Constraint("Coincident", 5, 2, 6, 1),
    Sketcher.Constraint("Coincident", 6, 2, 7, 1),
    Sketcher.Constraint("Coincident", 7, 2, 4, 1),
    Sketcher.Constraint("Coincident", 8, 2, 9, 1),
    Sketcher.Constraint("Coincident", 9, 2, 10, 1),
    Sketcher.Constraint("Coincident", 10, 2, 11, 1),
    Sketcher.Constraint("Coincident", 11, 2, 8, 1),
    Sketcher.Constraint("Coincident", 12, 2, 13, 1),
    Sketcher.Constraint("Coincident", 13, 2, 14, 1),
    Sketcher.Constraint("Coincident", 14, 2, 15, 1),
    Sketcher.Constraint("Coincident", 15, 2, 12, 1),
    Sketcher.Constraint("Coincident", 16, 2, 17, 1),
    Sketcher.Constraint("Coincident", 17, 2, 18, 1),
    Sketcher.Constraint("Coincident", 18, 2, 19, 1),
    Sketcher.Constraint("Coincident", 19, 2, 16, 1),
    Sketcher.Constraint("Coincident", 20, 2, 21, 1),
    Sketcher.Constraint("Coincident", 21, 2, 22, 1),
    Sketcher.Constraint("Coincident", 22, 2, 23, 1),
    Sketcher.Constraint("Coincident", 23, 2, 20, 1),
    Sketcher.Constraint("Coincident", 24, 2, 25, 1),
    Sketcher.Constraint("Coincident", 25, 2, 26, 1),
    Sketcher.Constraint("Coincident", 26, 2, 27, 1),
    Sketcher.Constraint("Coincident", 27, 2, 24, 1),
    Sketcher.Constraint("Coincident", 28, 2, 29, 1),
    Sketcher.Constraint("Coincident", 29, 2, 30, 1),
    Sketcher.Constraint("Coincident", 30, 2, 31, 1),
    Sketcher.Constraint("Coincident", 31, 2, 28, 1),
    Sketcher.Constraint("Vertical", 0),
    Sketcher.Constraint("Horizontal", 1),
    Sketcher.Constraint("Vertical", 2),
    Sketcher.Constraint("Horizontal", 3),
    Sketcher.Constraint("Vertical", 4),
    Sketcher.Constraint("Horizontal", 5),
    Sketcher.Constraint("Vertical", 6),
    Sketcher.Constraint("Horizontal", 7),
    Sketcher.Constraint("Vertical", 8),
    Sketcher.Constraint("Horizontal", 9),
    Sketcher.Constraint("Vertical", 10),
    Sketcher.Constraint("Horizontal", 11),
    Sketcher.Constraint("Vertical", 12),
    Sketcher.Constraint("Horizontal", 13),
    Sketcher.Constraint("Vertical", 14),
    Sketcher.Constraint("Horizontal", 15),
    Sketcher.Constraint("Vertical", 16),
    Sketcher.Constraint("Horizontal", 17),
    Sketcher.Constraint("Vertical", 18),
    Sketcher.Constraint("Horizontal", 19),
    Sketcher.Constraint("Vertical", 20),
    Sketcher.Constraint("Horizontal", 21),
    Sketcher.Constraint("Vertical", 22),
    Sketcher.Constraint("Horizontal", 23),
    Sketcher.Constraint("Vertical", 24),
    Sketcher.Constraint("Horizontal", 25),
    Sketcher.Constraint("Vertical", 26),
    Sketcher.Constraint("Horizontal", 27),
    Sketcher.Constraint("Vertical", 28),
    Sketcher.Constraint("Horizontal", 29),
    Sketcher.Constraint("Vertical", 30),
    Sketcher.Constraint("Horizontal", 31),
    Sketcher.Constraint("Coincident", 7, 2, 1, 2),
    Sketcher.Constraint("Coincident", 14, 2, 8, 2),
    Sketcher.Constraint("Coincident", 21, 2, 19, 2),
    Sketcher.Constraint("Coincident", 28, 2, 26, 2),
    Sketcher.Constraint("Symmetric", 6, 2, 20, 2, -1, 1),
    Sketcher.Constraint("Symmetric", 9, 2, 27, 2, -1, 1),
    Sketcher.Constraint("Symmetric", 9, 2, 20, 2, -2),
    Sketcher.Constraint("Symmetric", 4, 2, 11, 2, -1),
    Sketcher.Constraint("Symmetric", 3, 2, 12, 2, -1),
    Sketcher.Constraint("Symmetric", 22, 2, 25, 2, -1),
    Sketcher.Constraint("Symmetric", 17, 2, 30, 2, -1),
    Sketcher.Constraint("Horizontal", 13, 2, 16, 2),
    Sketcher.Constraint("Equal", 3, 5),
    Sketcher.Constraint("Equal", 15, 17),
    Sketcher.Constraint("Equal", 31, 0),
    Sketcher.Constraint("Equal", 2, 4),
    Sketcher.Constraint("Equal", 27, 20),
    Sketcher.Constraint("DistanceX", 1, 1, 1, 2, Q("1 mm")),
    Sketcher.Constraint("DistanceX", -1, 1, 0, 2, Q("11.7 mm")),
    Sketcher.Constraint("DistanceY", 0, 2, -1, 1, Q("1.9 mm")),
    Sketcher.Constraint("DistanceX", 21, 1, 21, 2, Q("0.995201 mm")),
])
sketch6.setExpression("Constraints[81]", "Params.sketch6_width")
pocket2 = body.newObject("PartDesign::Pocket", "Pocket001")
pocket2.Profile = sketch6
pocket2.setExpression("Length", "Params.pocket2_length")
pocket2.Reversed = True
doc.recompute()

fillet = body.newObject("PartDesign::Fillet", "Fillet")
fillet.Base = (pocket2, edges_at(pocket2, [
    (-13.202, 8.5, -0.905),
    (-13.202, 8.5, 0.905),
    (13.2, 8.5, 0.9),
    (13.2, 8.5, -0.9),
    (11.7, 8.5, -2.4),
    (11.7, 8.5, 2.4),
    (-11.705, 8.5, 2.4),
    (-11.705, 8.5, -2.4),
]))
fillet.setExpression("Radius", "Params.fillet_radius")

doc.recompute()
